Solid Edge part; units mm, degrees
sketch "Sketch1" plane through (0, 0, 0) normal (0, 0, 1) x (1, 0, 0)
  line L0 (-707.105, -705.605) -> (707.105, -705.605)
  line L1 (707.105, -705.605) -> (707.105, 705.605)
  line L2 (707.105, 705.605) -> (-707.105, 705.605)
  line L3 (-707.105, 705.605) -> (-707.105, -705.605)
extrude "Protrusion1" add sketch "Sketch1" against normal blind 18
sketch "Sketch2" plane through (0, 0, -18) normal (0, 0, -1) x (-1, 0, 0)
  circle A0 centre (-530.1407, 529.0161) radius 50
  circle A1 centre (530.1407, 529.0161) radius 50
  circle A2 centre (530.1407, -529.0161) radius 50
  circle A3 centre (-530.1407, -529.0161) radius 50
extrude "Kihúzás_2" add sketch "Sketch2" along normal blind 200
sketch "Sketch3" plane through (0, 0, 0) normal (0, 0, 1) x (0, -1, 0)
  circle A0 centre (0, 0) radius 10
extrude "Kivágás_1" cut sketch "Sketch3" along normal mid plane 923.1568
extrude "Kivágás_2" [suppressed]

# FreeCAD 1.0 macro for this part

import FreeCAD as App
import Part
import Sketcher

V = App.Vector
Q = App.Units.Quantity


def add_polygon(sketch, points):
    """Adds a closed chain of lines whose ends are joined by coincident constraints."""
    first, n = sketch.GeometryCount, len(points)
    for a, b in zip(points, points[1:] + points[:1]):
        sketch.addGeometry(Part.LineSegment(App.Vector(*a, 0), App.Vector(*b, 0)), False)
    for i in range(n):
        sketch.addConstraint(Sketcher.Constraint("Coincident", first + i, 2, first + (i + 1) % n, 1))

doc = App.newDocument("Part")
body = doc.addObject("PartDesign::Body", "Body")

sketch1 = body.newObject("Sketcher::SketchObject", "Sketch")
sketch1.AttachmentSupport = (doc.getObject("XY_Plane"), [""])
sketch1.MapMode = "FlatFace"
add_polygon(sketch1, [(-707, 706), (-707, -706), (707, -706), (707, 706)])
sketch1.addConstraint(Sketcher.Constraint("Vertical", 0))
sketch1.addConstraint(Sketcher.Constraint("Horizontal", 1))
sketch1.addConstraint(Sketcher.Constraint("Vertical", 2))
sketch1.addConstraint(Sketcher.Constraint("Horizontal", 3))
sketch1.addConstraint(Sketcher.Constraint("Symmetric", 0, 2, 2, 2, -1, 1))
sketch1.addConstraint(Sketcher.Constraint("DistanceX", 1, 1, 1, 2, Q("1414.21 mm")))
sketch1.addConstraint(Sketcher.Constraint("DistanceY", 0, 2, 0, 1, Q("1411.21 mm")))
pad1 = body.newObject("PartDesign::Pad", "Pad")
pad1.Profile = sketch1
pad1.Length = 18
pad1.Reversed = True

sketch2 = body.newObject("Sketcher::SketchObject", "Sketch001")
sketch2.AttachmentSupport = (doc.getObject("XY_Plane"), [""])
sketch2.MapMode = "FlatFace"
sketch2.AttachmentOffset = App.Placement(V(0, 0, -18), App.Rotation())
sketch2.addGeometry(Part.Circle(V(530, 529, 0), V(0, 0, 1), 50), False)
sketch2.addGeometry(Part.Circle(V(-530, 529, 0), V(0, 0, 1), 50), False)
sketch2.addGeometry(Part.Circle(V(-530, -529, 0), V(0, 0, 1), 50), False)
sketch2.addGeometry(Part.Circle(V(530, -529, 0), V(0, 0, 1), 50), False)
sketch2.addConstraint(Sketcher.Constraint("Equal", 0, 1))
sketch2.addConstraint(Sketcher.Constraint("Equal", 1, 2))
sketch2.addConstraint(Sketcher.Constraint("Equal", 2, 3))
sketch2.addConstraint(Sketcher.Constraint("Symmetric", 0, 3, 2, 3, -1, 1))
sketch2.addConstraint(Sketcher.Constraint("Symmetric", 1, 3, 3, 3, -1, 1))
sketch2.addConstraint(Sketcher.Constraint("Symmetric", 0, 3, 1, 3, -2))
sketch2.addConstraint(Sketcher.Constraint("Diameter", 0, Q("100 mm")))
sketch2.addConstraint(Sketcher.Constraint("DistanceY", -1, 1, 0, 3, Q("529.016 mm")))
sketch2.addConstraint(Sketcher.Constraint("DistanceX", -1, 1, 0, 3, Q("530.1407 mm")))
pad2 = body.newObject("PartDesign::Pad", "Pad001")
pad2.Profile = sketch2
pad2.Length = 200
pad2.Reversed = True

sketch3 = body.newObject("Sketcher::SketchObject", "Sketch002")
sketch3.AttachmentSupport = (doc.getObject("XY_Plane"), [""])
sketch3.MapMode = "FlatFace"
sketch3.addGeometry(Part.Circle(V(0, 0, 0), V(0, 0, 1), 10), False)
sketch3.addConstraint(Sketcher.Constraint("Coincident", 0, 3, -1, 1))
sketch3.addConstraint(Sketcher.Constraint("Diameter", 0, Q("20 mm")))
pocket1 = body.newObject("PartDesign::Pocket", "Pocket")
pocket1.Profile = sketch3
pocket1.Length = 923.1568
pocket1.Midplane = True

doc.recompute()
